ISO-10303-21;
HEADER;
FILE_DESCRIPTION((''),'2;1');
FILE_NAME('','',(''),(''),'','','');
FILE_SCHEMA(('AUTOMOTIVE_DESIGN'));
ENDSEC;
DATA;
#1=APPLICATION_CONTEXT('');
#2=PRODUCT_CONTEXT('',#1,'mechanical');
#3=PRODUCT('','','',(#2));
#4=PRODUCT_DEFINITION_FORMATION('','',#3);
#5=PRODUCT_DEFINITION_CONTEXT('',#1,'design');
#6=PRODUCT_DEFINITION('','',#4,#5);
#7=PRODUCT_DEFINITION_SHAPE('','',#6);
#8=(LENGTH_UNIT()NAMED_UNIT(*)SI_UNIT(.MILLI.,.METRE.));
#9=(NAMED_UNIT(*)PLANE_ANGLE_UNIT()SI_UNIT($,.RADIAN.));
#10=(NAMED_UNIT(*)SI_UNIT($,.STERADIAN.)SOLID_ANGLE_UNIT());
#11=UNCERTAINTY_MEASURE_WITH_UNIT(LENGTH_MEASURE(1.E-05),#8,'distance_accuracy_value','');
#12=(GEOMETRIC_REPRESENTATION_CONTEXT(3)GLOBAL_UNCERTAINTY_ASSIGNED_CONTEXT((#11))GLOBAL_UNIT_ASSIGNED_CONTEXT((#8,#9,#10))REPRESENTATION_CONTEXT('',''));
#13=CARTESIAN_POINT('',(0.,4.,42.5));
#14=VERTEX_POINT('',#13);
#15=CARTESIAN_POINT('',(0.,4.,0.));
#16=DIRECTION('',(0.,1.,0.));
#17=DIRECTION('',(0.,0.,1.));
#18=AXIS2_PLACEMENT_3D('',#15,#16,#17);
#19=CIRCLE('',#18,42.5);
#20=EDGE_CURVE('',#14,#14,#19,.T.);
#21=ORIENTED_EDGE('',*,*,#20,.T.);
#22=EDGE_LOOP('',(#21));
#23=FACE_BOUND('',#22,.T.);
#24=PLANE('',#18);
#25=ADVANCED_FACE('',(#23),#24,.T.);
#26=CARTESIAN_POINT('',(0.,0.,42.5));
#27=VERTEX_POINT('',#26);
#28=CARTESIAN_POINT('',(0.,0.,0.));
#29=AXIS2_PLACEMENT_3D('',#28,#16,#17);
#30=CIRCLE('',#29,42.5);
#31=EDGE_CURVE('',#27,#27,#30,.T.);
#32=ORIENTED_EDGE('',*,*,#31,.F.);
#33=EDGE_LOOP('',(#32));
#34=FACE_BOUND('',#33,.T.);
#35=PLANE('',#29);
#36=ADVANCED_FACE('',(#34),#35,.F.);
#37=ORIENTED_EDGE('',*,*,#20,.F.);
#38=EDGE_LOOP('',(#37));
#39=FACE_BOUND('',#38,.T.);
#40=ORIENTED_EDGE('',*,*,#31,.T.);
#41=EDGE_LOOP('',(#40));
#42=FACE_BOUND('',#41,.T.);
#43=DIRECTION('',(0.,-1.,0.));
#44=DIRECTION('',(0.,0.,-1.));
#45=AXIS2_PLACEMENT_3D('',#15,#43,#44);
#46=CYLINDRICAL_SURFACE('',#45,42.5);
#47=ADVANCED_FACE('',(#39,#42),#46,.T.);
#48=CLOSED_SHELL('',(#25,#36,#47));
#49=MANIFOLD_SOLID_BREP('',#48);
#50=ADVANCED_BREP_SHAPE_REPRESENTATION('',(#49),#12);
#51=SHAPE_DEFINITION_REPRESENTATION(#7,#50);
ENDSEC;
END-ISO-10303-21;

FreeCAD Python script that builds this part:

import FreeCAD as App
import Part
import Sketcher

V = App.Vector

doc = App.newDocument("Part")
params = doc.addObject("Spreadsheet::Sheet", "Params")
for row, (alias, value) in enumerate([
    ("sketch1_diameter", "85 mm"),
    ("pad1_length", "4 mm"),
], start=1):
    params.set(f"A{row}", alias)
    params.set(f"B{row}", "=" + value)
    params.setAlias(f"B{row}", alias)

body = doc.addObject("PartDesign::Body", "Body")

# Sketch on XZ plane
sketch1 = body.newObject("Sketcher::SketchObject", "Sketch")
sketch1.AttachmentSupport = (doc.getObject("XZ_Plane"), [""])
sketch1.MapMode = "FlatFace"
sketch1.addGeometry(Part.Circle(V(0, 0, 0), V(0, 0, 1), 42), False)
sketch1.addConstraint([
    Sketcher.Constraint("Coincident", 0, 3, -1, 1),
    Sketcher.Constraint("Diameter", 0, 85.0),
])
sketch1.setExpression("Constraints[1]", "Params.sketch1_diameter")
pad1 = body.newObject("PartDesign::Pad", "Pad")
pad1.Profile = sketch1
pad1.setExpression("Length", "Params.pad1_length")
pad1.Reversed = True

doc.recompute()
